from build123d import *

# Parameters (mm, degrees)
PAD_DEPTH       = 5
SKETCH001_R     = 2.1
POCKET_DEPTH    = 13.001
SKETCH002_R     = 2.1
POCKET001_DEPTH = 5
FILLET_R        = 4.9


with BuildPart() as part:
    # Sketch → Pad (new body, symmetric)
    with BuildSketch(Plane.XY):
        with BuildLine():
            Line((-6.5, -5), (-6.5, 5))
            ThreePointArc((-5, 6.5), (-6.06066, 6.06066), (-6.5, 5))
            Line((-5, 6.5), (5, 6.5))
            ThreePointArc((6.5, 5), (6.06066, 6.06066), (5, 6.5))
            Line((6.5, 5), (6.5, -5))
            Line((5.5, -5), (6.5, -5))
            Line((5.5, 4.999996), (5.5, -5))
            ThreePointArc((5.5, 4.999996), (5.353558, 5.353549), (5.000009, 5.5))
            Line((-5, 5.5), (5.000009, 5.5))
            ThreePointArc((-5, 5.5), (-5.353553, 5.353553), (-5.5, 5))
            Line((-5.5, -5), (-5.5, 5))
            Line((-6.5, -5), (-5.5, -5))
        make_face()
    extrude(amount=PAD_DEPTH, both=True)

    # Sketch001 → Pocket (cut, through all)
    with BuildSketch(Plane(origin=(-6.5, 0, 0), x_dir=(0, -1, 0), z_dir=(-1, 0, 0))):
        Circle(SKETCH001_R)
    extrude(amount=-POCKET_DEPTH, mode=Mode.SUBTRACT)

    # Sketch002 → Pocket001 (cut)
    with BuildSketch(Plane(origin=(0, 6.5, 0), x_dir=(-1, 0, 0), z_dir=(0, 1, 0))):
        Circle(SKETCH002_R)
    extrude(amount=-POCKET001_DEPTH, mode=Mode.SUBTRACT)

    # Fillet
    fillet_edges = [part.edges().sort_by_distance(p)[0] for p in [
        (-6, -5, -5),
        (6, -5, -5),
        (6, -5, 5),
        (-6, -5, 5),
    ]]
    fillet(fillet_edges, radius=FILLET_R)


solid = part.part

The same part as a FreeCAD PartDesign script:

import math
import FreeCAD as App
import Part
import Sketcher

V = App.Vector
Q = App.Units.Quantity


def edges_at(feature, points):
    """Names of the edges that pass closest to the given points."""
    edges = feature.Shape.Edges
    near = lambda p: min(range(len(edges)), key=lambda i: edges[i].distToShape(Part.Vertex(*p))[0])
    return sorted({f"Edge{near(p) + 1}" for p in points})

doc = App.newDocument("Part")
body = doc.addObject("PartDesign::Body", "Body")

sketch1 = body.newObject("Sketcher::SketchObject", "Sketch")
sketch1.AttachmentSupport = (doc.getObject("XY_Plane"), [""])
sketch1.MapMode = "FlatFace"
sketch1.addGeometry(Part.LineSegment(V(-6.5, 5, 0), V(-6.5, -5, 0)), False)
sketch1.addGeometry(Part.LineSegment(V(-6.5, -5, 0), V(-5.5, -5, 0)), False)
sketch1.addGeometry(Part.LineSegment(V(-5.5, -5, 0), V(-5.5, 5, 0)), False)
sketch1.addGeometry(Part.ArcOfCircle(Part.Circle(V(-4.999999, 4.999999, 0), V(0, 0, 1), 0.500001), math.radians(90.000153), math.radians(179.999847)), False)
sketch1.addGeometry(Part.LineSegment(V(-5, 5.5, 0), V(5.000009, 5.5, 0)), False)
sketch1.addGeometry(Part.ArcOfCircle(Part.Circle(V(5, 5, 0), V(0, 0, 1), 0.5), math.radians(-0.000501), math.radians(89.999011)), False)
sketch1.addGeometry(Part.LineSegment(V(5.5, 4.999996, 0), V(5.5, -5, 0)), False)
sketch1.addGeometry(Part.LineSegment(V(5.5, -5, 0), V(6.5, -5, 0)), False)
sketch1.addGeometry(Part.LineSegment(V(6.5, -5, 0), V(6.5, 5, 0)), False)
sketch1.addGeometry(Part.ArcOfCircle(Part.Circle(V(4.999999, 4.999999, 0), V(0, 0, 1), 1.500001), math.radians(0.000022), math.radians(89.999978)), False)
sketch1.addGeometry(Part.LineSegment(V(5, 6.5, 0), V(-5, 6.5, 0)), False)
sketch1.addGeometry(Part.ArcOfCircle(Part.Circle(V(-4.999999, 4.999999, 0), V(0, 0, 1), 1.500001), math.radians(90.000022), math.radians(179.999978)), False)
sketch1.addConstraint(Sketcher.Constraint("Coincident", 0, 2, 1, 1))
sketch1.addConstraint(Sketcher.Constraint("Coincident", 1, 2, 2, 1))
sketch1.addConstraint(Sketcher.Constraint("Coincident", 2, 2, 3, 2))
sketch1.addConstraint(Sketcher.Constraint("Coincident", 3, 1, 4, 1))
sketch1.addConstraint(Sketcher.Constraint("Coincident", 4, 2, 5, 2))
sketch1.addConstraint(Sketcher.Constraint("Coincident", 5, 1, 6, 1))
sketch1.addConstraint(Sketcher.Constraint("Coincident", 6, 2, 7, 1))
sketch1.addConstraint(Sketcher.Constraint("Coincident", 7, 2, 8, 1))
sketch1.addConstraint(Sketcher.Constraint("Tangent", 8, 2, 9, 1))
sketch1.addConstraint(Sketcher.Constraint("Tangent", 9, 2, 10, 1))
sketch1.addConstraint(Sketcher.Constraint("Tangent", 10, 2, 11, 1))
sketch1.addConstraint(Sketcher.Constraint("Tangent", 11, 2, 0, 1))
sketch1.addConstraint(Sketcher.Constraint("Vertical", 0))
sketch1.addConstraint(Sketcher.Constraint("Horizontal", 1))
sketch1.addConstraint(Sketcher.Constraint("Vertical", 2))
sketch1.addConstraint(Sketcher.Constraint("Horizontal", 4))
sketch1.addConstraint(Sketcher.Constraint("Vertical", 6))
sketch1.addConstraint(Sketcher.Constraint("Horizontal", 7))
sketch1.addConstraint(Sketcher.Constraint("Vertical", 8))
sketch1.addConstraint(Sketcher.Constraint("Horizontal", 10))
sketch1.addConstraint(Sketcher.Constraint("Coincident", 9, 3, 5, 3))
sketch1.addConstraint(Sketcher.Constraint("Coincident", 11, 3, 3, 3))
sketch1.addConstraint(Sketcher.Constraint("Equal", 3, 5))
sketch1.addConstraint(Sketcher.Constraint("Symmetric", 1, 2, 5, 1, -1, 1))
sketch1.addConstraint(Sketcher.Constraint("Horizontal", 11, 3, 2, 2))
sketch1.addConstraint(Sketcher.Constraint("Horizontal", 1, 2, 6, 2))
sketch1.addConstraint(Sketcher.Constraint("Vertical", 11, 3, 3, 1))
sketch1.addConstraint(Sketcher.Constraint("Equal", 10, 0))
sketch1.addConstraint(Sketcher.Constraint("Radius", 3, Q("0.500001 mm")))
sketch1.addConstraint(Sketcher.Constraint("Radius", 9, Q("1.500001 mm")))
sketch1.addConstraint(Sketcher.Constraint("DistanceX", 10, 2, 10, 1, Q("10 mm")))
sketch1.addConstraint(Sketcher.Constraint("DistanceY", -1, 1, 3, 3, Q("4.999999 mm")))
sketch1.addConstraint(Sketcher.Constraint("DistanceX", 4, 1, 4, 2, Q("10.000009 mm")))
pad1 = body.newObject("PartDesign::Pad", "Pad")
pad1.Profile = sketch1
pad1.Length = 10
pad1.Midplane = True

sketch2 = body.newObject("Sketcher::SketchObject", "Sketch001")
sketch2.AttachmentSupport = (doc.getObject("YZ_Plane"), [""])
sketch2.MapMode = "FlatFace"
sketch2.AttachmentOffset = App.Placement(V(0, 0, -6.5), App.Rotation())
sketch2.addGeometry(Part.Circle(V(0, 0, 0), V(0, 0, 1), 2.1), False)
sketch2.addConstraint(Sketcher.Constraint("Coincident", 0, 3, -1, 1))
sketch2.addConstraint(Sketcher.Constraint("Diameter", 0, Q("4.2 mm")))
pocket1 = body.newObject("PartDesign::Pocket", "Pocket")
pocket1.Profile = sketch2
pocket1.Type = "ThroughAll"
pocket1.Reversed = True

sketch3 = body.newObject("Sketcher::SketchObject", "Sketch002")
sketch3.AttachmentSupport = (doc.getObject("XZ_Plane"), [""])
sketch3.MapMode = "FlatFace"
sketch3.AttachmentOffset = App.Placement(V(0, 0, -6.5), App.Rotation())
sketch3.addGeometry(Part.Circle(V(0, 0, 0), V(0, 0, 1), 2.1), False)
sketch3.addConstraint(Sketcher.Constraint("Coincident", 0, 3, -1, 1))
sketch3.addConstraint(Sketcher.Constraint("Diameter", 0, Q("4.2 mm")))
pocket2 = body.newObject("PartDesign::Pocket", "Pocket001")
pocket2.Profile = sketch3
pocket2.Length = 5
pocket2.Reversed = True
doc.recompute()

fillet = body.newObject("PartDesign::Fillet", "Fillet")
fillet.Base = (pocket2, edges_at(pocket2, [
    (-6, -5, -5),
    (6, -5, -5),
    (6, -5, 5),
    (-6, -5, 5),
]))
fillet.Radius = 4.9

doc.recompute()
